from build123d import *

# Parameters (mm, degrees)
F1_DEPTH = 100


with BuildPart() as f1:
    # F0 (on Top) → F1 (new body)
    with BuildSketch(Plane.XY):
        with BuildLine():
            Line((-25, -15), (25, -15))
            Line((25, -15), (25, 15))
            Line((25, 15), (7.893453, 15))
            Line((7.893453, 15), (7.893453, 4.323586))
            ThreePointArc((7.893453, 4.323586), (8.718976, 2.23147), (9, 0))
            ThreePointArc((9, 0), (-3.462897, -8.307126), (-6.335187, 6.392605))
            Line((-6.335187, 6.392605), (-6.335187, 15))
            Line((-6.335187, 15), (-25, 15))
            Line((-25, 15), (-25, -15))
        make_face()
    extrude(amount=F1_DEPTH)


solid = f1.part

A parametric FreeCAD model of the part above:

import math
import FreeCAD as App
import Part
import Sketcher
from FreeCAD import Vector

doc = App.newDocument("Part")
body = doc.addObject("PartDesign::Body", "Body")

# Sketch on XY plane
sketch1 = body.newObject("Sketcher::SketchObject", "Sketch")
sketch1.AttachmentSupport = (doc.getObject("XY_Plane"), [""])
sketch1.MapMode = "FlatFace"
sketch1.addGeometry(Part.LineSegment(Vector(-25, -15, 0), Vector(25, -15, 0)), False)
sketch1.addGeometry(Part.LineSegment(Vector(25, -15, 0), Vector(25, 15, 0)), False)
sketch1.addGeometry(Part.LineSegment(Vector(25, 15, 0), Vector(7.893453, 15, 0)), False)
sketch1.addGeometry(Part.LineSegment(Vector(7.893453, 15, 0), Vector(7.893453, 4.323586, 0)), False)
sketch1.addGeometry(Part.ArcOfCircle(Part.Circle(Vector(0.000005, 0.000001, 0), Vector(0, 0, 1), 8.999995), math.radians(-0.000005), math.radians(28.711439)), False)
sketch1.addGeometry(Part.ArcOfCircle(Part.Circle(Vector(0, 0, 0), Vector(0, 0, 1), 9), math.radians(134.741527), math.radians(360.000001)), False)
sketch1.addGeometry(Part.LineSegment(Vector(-6.335187, 6.392605, 0), Vector(-6.335187, 15, 0)), False)
sketch1.addGeometry(Part.LineSegment(Vector(-6.335187, 15, 0), Vector(-25, 15, 0)), False)
sketch1.addGeometry(Part.LineSegment(Vector(-25, 15, 0), Vector(-25, -15, 0)), False)
sketch1.addConstraint(Sketcher.Constraint("Coincident", 0, 2, 1, 1))
sketch1.addConstraint(Sketcher.Constraint("Coincident", 1, 2, 2, 1))
sketch1.addConstraint(Sketcher.Constraint("Coincident", 2, 2, 3, 1))
sketch1.addConstraint(Sketcher.Constraint("Coincident", 3, 2, 4, 2))
sketch1.addConstraint(Sketcher.Constraint("Tangent", 4, 1, 5, 2))
sketch1.addConstraint(Sketcher.Constraint("Coincident", 5, 1, 6, 1))
sketch1.addConstraint(Sketcher.Constraint("Coincident", 6, 2, 7, 1))
sketch1.addConstraint(Sketcher.Constraint("Coincident", 7, 2, 8, 1))
sketch1.addConstraint(Sketcher.Constraint("Coincident", 8, 2, 0, 1))
sketch1.addConstraint(Sketcher.Constraint("Horizontal", 0))
sketch1.addConstraint(Sketcher.Constraint("Vertical", 1))
sketch1.addConstraint(Sketcher.Constraint("Horizontal", 2))
sketch1.addConstraint(Sketcher.Constraint("Vertical", 3))
sketch1.addConstraint(Sketcher.Constraint("Vertical", 6))
sketch1.addConstraint(Sketcher.Constraint("Horizontal", 7))
sketch1.addConstraint(Sketcher.Constraint("Vertical", 8))
sketch1.addConstraint(Sketcher.Constraint("Coincident", 4, 3, -1, 1))
sketch1.addConstraint(Sketcher.Constraint("Symmetric", 0, 2, 7, 2, -1, 1))
sketch1.addConstraint(Sketcher.Constraint("PointOnObject", 4, 1, -1))
sketch1.addConstraint(Sketcher.Constraint("Horizontal", 2, 2, 6, 2))
sketch1.addConstraint(Sketcher.Constraint("Radius", 5, 9.0))
sketch1.addConstraint(Sketcher.Constraint("DistanceX", 0, 1, 0, 2, 50.0))
sketch1.addConstraint(Sketcher.Constraint("DistanceY", 1, 1, 1, 2, 30.0))
sketch1.addConstraint(Sketcher.Constraint("DistanceX", -1, 1, 4, 1, 9.0))
sketch1.addConstraint(Sketcher.Constraint("DistanceX", 2, 2, 2, 1, 17.106547))
sketch1.addConstraint(Sketcher.Constraint("DistanceX", 7, 2, 7, 1, 18.664813))
pad1 = body.newObject("PartDesign::Pad", "Pad")
pad1.Profile = sketch1
pad1.Length = 100

doc.recompute()
